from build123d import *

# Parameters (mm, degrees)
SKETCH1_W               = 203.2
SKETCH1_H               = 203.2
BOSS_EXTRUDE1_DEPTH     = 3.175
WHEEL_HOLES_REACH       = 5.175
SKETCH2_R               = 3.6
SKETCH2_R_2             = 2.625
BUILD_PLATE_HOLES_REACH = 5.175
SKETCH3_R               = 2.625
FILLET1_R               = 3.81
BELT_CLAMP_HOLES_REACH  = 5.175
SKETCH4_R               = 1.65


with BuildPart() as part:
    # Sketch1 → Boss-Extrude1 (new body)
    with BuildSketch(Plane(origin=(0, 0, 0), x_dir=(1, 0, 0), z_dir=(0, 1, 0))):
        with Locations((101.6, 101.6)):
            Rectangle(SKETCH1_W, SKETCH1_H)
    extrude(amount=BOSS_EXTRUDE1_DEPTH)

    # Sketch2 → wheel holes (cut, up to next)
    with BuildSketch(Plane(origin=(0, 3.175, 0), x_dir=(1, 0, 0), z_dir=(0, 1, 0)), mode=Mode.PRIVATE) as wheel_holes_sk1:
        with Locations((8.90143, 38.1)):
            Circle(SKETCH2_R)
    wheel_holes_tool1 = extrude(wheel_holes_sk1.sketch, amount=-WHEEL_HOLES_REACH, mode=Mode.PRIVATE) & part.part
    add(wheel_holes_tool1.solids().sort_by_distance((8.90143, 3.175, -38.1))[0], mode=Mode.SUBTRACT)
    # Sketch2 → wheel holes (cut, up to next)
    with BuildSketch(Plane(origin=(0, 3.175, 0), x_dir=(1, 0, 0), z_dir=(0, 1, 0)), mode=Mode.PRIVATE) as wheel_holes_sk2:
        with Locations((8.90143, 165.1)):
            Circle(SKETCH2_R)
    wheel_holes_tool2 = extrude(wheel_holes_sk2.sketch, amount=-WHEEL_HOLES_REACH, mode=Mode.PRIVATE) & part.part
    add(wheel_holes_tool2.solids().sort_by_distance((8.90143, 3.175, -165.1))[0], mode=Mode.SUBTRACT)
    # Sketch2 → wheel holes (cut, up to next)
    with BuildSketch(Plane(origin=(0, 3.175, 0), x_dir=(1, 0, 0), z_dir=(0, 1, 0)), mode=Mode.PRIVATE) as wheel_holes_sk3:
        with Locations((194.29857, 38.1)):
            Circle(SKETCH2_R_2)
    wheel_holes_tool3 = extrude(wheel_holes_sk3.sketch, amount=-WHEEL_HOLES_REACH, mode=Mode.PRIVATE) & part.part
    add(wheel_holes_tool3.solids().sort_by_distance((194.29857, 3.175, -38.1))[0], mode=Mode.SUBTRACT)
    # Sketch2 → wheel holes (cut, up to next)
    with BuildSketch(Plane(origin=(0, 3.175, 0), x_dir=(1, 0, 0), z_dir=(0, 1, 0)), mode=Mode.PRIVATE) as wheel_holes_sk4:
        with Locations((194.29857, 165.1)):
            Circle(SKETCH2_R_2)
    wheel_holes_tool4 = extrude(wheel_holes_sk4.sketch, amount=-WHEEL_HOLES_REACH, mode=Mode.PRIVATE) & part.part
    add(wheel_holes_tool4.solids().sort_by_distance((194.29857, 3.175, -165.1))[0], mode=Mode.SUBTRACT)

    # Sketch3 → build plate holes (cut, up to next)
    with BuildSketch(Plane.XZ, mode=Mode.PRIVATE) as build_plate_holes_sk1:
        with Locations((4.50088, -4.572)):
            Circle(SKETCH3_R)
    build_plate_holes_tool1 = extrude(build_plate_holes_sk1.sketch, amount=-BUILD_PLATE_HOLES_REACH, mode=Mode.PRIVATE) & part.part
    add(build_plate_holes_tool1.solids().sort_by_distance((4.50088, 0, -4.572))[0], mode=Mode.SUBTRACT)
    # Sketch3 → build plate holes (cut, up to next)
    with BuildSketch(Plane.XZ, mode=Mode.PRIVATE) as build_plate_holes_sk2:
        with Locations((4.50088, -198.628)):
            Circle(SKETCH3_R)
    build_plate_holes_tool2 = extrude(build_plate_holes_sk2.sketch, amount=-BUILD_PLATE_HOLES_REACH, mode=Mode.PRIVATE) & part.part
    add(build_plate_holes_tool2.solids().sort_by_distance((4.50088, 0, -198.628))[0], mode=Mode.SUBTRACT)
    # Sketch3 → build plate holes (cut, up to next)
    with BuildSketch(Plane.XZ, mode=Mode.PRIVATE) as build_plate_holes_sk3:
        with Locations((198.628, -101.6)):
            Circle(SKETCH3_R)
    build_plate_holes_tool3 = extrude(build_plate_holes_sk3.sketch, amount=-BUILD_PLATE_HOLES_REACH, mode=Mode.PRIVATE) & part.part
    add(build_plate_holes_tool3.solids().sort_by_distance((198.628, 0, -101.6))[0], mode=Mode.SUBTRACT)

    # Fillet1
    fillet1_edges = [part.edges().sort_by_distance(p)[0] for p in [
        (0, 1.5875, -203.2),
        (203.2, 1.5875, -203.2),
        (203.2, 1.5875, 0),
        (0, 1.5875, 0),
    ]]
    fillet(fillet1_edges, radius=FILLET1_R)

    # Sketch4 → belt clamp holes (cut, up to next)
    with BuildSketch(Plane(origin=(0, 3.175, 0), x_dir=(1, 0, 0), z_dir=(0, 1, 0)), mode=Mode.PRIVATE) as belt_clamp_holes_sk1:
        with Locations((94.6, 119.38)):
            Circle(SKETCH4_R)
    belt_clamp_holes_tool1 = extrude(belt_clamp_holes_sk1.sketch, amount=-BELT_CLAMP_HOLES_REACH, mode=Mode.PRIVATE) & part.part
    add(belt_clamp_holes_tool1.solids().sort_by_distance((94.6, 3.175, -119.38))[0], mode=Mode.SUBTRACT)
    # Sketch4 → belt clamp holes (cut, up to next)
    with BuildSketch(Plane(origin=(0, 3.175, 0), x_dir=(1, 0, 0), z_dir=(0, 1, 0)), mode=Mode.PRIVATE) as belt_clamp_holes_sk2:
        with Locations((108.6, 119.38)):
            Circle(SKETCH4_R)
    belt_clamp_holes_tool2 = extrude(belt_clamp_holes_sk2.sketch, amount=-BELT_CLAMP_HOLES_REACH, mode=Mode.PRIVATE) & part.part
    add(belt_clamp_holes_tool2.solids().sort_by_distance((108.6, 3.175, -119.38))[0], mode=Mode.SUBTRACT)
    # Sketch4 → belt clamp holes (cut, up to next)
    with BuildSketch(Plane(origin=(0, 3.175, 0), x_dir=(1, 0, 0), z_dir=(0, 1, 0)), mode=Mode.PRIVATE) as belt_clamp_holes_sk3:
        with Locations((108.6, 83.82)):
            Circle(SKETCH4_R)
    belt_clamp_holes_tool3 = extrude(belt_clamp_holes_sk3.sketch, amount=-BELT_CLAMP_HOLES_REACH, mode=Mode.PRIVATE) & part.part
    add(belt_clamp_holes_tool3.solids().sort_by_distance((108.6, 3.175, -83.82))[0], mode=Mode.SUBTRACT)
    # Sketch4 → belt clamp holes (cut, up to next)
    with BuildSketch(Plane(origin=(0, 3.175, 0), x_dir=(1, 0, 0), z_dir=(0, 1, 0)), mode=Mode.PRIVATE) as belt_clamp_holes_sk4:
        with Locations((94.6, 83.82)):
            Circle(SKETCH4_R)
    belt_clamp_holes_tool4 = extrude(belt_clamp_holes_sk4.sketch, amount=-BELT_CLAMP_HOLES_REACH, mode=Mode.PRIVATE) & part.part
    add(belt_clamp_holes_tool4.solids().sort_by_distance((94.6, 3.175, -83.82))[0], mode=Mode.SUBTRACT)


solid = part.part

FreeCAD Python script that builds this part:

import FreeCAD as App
import Part
import Sketcher

V = App.Vector
Q = App.Units.Quantity


def edges_at(feature, points):
    """Names of the edges that pass closest to the given points."""
    edges = feature.Shape.Edges
    near = lambda p: min(range(len(edges)), key=lambda i: edges[i].distToShape(Part.Vertex(*p))[0])
    return sorted({f"Edge{near(p) + 1}" for p in points})

doc = App.newDocument("Part")
params = doc.addObject("Spreadsheet::Sheet", "Params")
for row, (alias, value) in enumerate([
    ("sketch1_width", "8 in"),
    ("pad1_length", "0.125 in"),
    ("fillet_radius", "0.15 in"),
], start=1):
    params.set(f"A{row}", alias)
    params.set(f"B{row}", "=" + value)
    params.setAlias(f"B{row}", alias)

body = doc.addObject("PartDesign::Body", "Body")

# Sketch on XZ plane
sketch1 = body.newObject("Sketcher::SketchObject", "Sketch")
sketch1.AttachmentSupport = (doc.getObject("XZ_Plane"), [""])
sketch1.MapMode = "FlatFace"
sketch1.addGeometry([
    Part.LineSegment(V(0, -203, 0), V(0, 0, 0)),
    Part.LineSegment(V(0, 0, 0), V(203, 0, 0)),
    Part.LineSegment(V(203, 0, 0), V(203, -203, 0)),
    Part.LineSegment(V(203, -203, 0), V(0, -203, 0)),
], False)
sketch1.addConstraint([
    Sketcher.Constraint("Coincident", 0, 2, 1, 1),
    Sketcher.Constraint("Coincident", 1, 2, 2, 1),
    Sketcher.Constraint("Coincident", 2, 2, 3, 1),
    Sketcher.Constraint("Coincident", 3, 2, 0, 1),
    Sketcher.Constraint("Vertical", 0),
    Sketcher.Constraint("Horizontal", 1),
    Sketcher.Constraint("Vertical", 2),
    Sketcher.Constraint("Horizontal", 3),
    Sketcher.Constraint("Coincident", 0, 2, -1, 1),
    Sketcher.Constraint("Equal", 3, 0),
    Sketcher.Constraint("DistanceX", 1, 1, 1, 2, Q("8 in")),
])
sketch1.setExpression("Constraints[10]", "Params.sketch1_width")
pad1 = body.newObject("PartDesign::Pad", "Pad")
pad1.Profile = sketch1
pad1.setExpression("Length", "Params.pad1_length")
pad1.Reversed = True

# Sketch on XZ plane
sketch2 = body.newObject("Sketcher::SketchObject", "Sketch001")
sketch2.AttachmentSupport = (doc.getObject("XZ_Plane"), [""])
sketch2.MapMode = "FlatFace"
sketch2.AttachmentOffset = App.Placement(V(0, 0, -0.125 * 25.4), App.Rotation())
sketch2.addGeometry(Part.Circle(V(8.9, -38.1, 0), V(0, 0, 1), 3.6), False)
sketch2.addConstraint([
    Sketcher.Constraint("DistanceY", 0, 3, -1, 1, Q("1.5 in")),
    Sketcher.Constraint("Diameter", 0, Q("7.2 mm")),
    Sketcher.Constraint("DistanceX", -1, 1, 0, 3, Q("8.90143 mm")),
])
pocket1 = body.newObject("PartDesign::Pocket", "Pocket")
pocket1.Profile = sketch2
pocket1.Type = "UpToFirst"
pocket1.Reversed = True

# Sketch on XZ plane
sketch3 = body.newObject("Sketcher::SketchObject", "Sketch002")
sketch3.AttachmentSupport = (doc.getObject("XZ_Plane"), [""])
sketch3.MapMode = "FlatFace"
sketch3.AttachmentOffset = App.Placement(V(0, 0, -0.125 * 25.4), App.Rotation())
sketch3.addGeometry(Part.Circle(V(8.9, -165.1, 0), V(0, 0, 1), 3.6), False)
sketch3.addConstraint([
    Sketcher.Constraint("DistanceY", 0, 3, -1, 1, Q("6.5 in")),
    Sketcher.Constraint("Diameter", 0, Q("7.2 mm")),
    Sketcher.Constraint("DistanceX", -1, 1, 0, 3, Q("8.90143 mm")),
])
pocket2 = body.newObject("PartDesign::Pocket", "Pocket001")
pocket2.Profile = sketch3
pocket2.Type = "UpToFirst"
pocket2.Reversed = True

# Sketch on XZ plane
sketch4 = body.newObject("Sketcher::SketchObject", "Sketch003")
sketch4.AttachmentSupport = (doc.getObject("XZ_Plane"), [""])
sketch4.MapMode = "FlatFace"
sketch4.AttachmentOffset = App.Placement(V(0, 0, -0.125 * 25.4), App.Rotation())
sketch4.addGeometry(Part.Circle(V(194.3, -38.1, 0), V(0, 0, 1), 2.6), False)
sketch4.addConstraint([
    Sketcher.Constraint("DistanceY", 0, 3, -1, 1, Q("1.5 in")),
    Sketcher.Constraint("Diameter", 0, Q("5.25 mm")),
    Sketcher.Constraint("DistanceX", -1, 1, 0, 3, Q("194.29857 mm")),
])
pocket3 = body.newObject("PartDesign::Pocket", "Pocket002")
pocket3.Profile = sketch4
pocket3.Type = "UpToFirst"
pocket3.Reversed = True

# Sketch on XZ plane
sketch5 = body.newObject("Sketcher::SketchObject", "Sketch004")
sketch5.AttachmentSupport = (doc.getObject("XZ_Plane"), [""])
sketch5.MapMode = "FlatFace"
sketch5.AttachmentOffset = App.Placement(V(0, 0, -0.125 * 25.4), App.Rotation())
sketch5.addGeometry(Part.Circle(V(194.3, -165.1, 0), V(0, 0, 1), 2.6), False)
sketch5.addConstraint([
    Sketcher.Constraint("DistanceY", 0, 3, -1, 1, Q("6.5 in")),
    Sketcher.Constraint("Diameter", 0, Q("5.25 mm")),
    Sketcher.Constraint("DistanceX", -1, 1, 0, 3, Q("194.29857 mm")),
])
pocket4 = body.newObject("PartDesign::Pocket", "Pocket003")
pocket4.Profile = sketch5
pocket4.Type = "UpToFirst"
pocket4.Reversed = True

# Sketch on XZ plane
sketch6 = body.newObject("Sketcher::SketchObject", "Sketch005")
sketch6.AttachmentSupport = (doc.getObject("XZ_Plane"), [""])
sketch6.MapMode = "FlatFace"
sketch6.addGeometry(Part.Circle(V(4.5, -4.6, 0), V(0, 0, 1), 2.6), False)
sketch6.addConstraint([
    Sketcher.Constraint("Diameter", 0, Q("5.25 mm")),
    Sketcher.Constraint("DistanceY", 0, 3, -1, 1, Q("0.18 in")),
    Sketcher.Constraint("DistanceX", -1, 1, 0, 3, Q("0.1772 in")),
])
pocket5 = body.newObject("PartDesign::Pocket", "Pocket004")
pocket5.Profile = sketch6
pocket5.Type = "UpToFirst"

# Sketch on XZ plane
sketch7 = body.newObject("Sketcher::SketchObject", "Sketch006")
sketch7.AttachmentSupport = (doc.getObject("XZ_Plane"), [""])
sketch7.MapMode = "FlatFace"
sketch7.addGeometry(Part.Circle(V(4.5, -198.6, 0), V(0, 0, 1), 2.6), False)
sketch7.addConstraint([
    Sketcher.Constraint("Diameter", 0, Q("5.25 mm")),
    Sketcher.Constraint("DistanceY", 0, 3, -1, 1, Q("7.82 in")),
    Sketcher.Constraint("DistanceX", -1, 1, 0, 3, Q("0.1772 in")),
])
pocket6 = body.newObject("PartDesign::Pocket", "Pocket005")
pocket6.Profile = sketch7
pocket6.Type = "UpToFirst"

# Sketch on XZ plane
sketch8 = body.newObject("Sketcher::SketchObject", "Sketch007")
sketch8.AttachmentSupport = (doc.getObject("XZ_Plane"), [""])
sketch8.MapMode = "FlatFace"
sketch8.addGeometry(Part.Circle(V(198.6, -101.6, 0), V(0, 0, 1), 2.6), False)
sketch8.addConstraint([
    Sketcher.Constraint("DistanceY", 0, 3, -1, 1, Q("4 in")),
    Sketcher.Constraint("Diameter", 0, Q("5.25 mm")),
    Sketcher.Constraint("DistanceX", -1, 1, 0, 3, Q("7.82 in")),
])
pocket7 = body.newObject("PartDesign::Pocket", "Pocket006")
pocket7.Profile = sketch8
pocket7.Type = "UpToFirst"
doc.recompute()

fillet = body.newObject("PartDesign::Fillet", "Fillet")
fillet.Base = (pocket7, edges_at(pocket7, [
    (0, 1.587, -203.2),
    (203.2, 1.587, -203.2),
    (203.2, 1.587, 0),
    (0, 1.587, 0),
]))
fillet.setExpression("Radius", "Params.fillet_radius")

# Sketch on XZ plane
sketch9 = body.newObject("Sketcher::SketchObject", "Sketch008")
sketch9.AttachmentSupport = (doc.getObject("XZ_Plane"), [""])
sketch9.MapMode = "FlatFace"
sketch9.AttachmentOffset = App.Placement(V(0, 0, -0.125 * 25.4), App.Rotation())
sketch9.addGeometry(Part.Circle(V(94.6, -119.4, 0), V(0, 0, 1), 1.6), False)
sketch9.addConstraint([
    Sketcher.Constraint("DistanceY", 0, 3, -1, 1, Q("4.7 in")),
    Sketcher.Constraint("Diameter", 0, Q("3.3 mm")),
    Sketcher.Constraint("DistanceX", -1, 1, 0, 3, Q("94.6 mm")),
])
pocket8 = body.newObject("PartDesign::Pocket", "Pocket007")
pocket8.Profile = sketch9
pocket8.Type = "UpToFirst"
pocket8.Reversed = True

# Sketch on XZ plane
sketch10 = body.newObject("Sketcher::SketchObject", "Sketch009")
sketch10.AttachmentSupport = (doc.getObject("XZ_Plane"), [""])
sketch10.MapMode = "FlatFace"
sketch10.AttachmentOffset = App.Placement(V(0, 0, -0.125 * 25.4), App.Rotation())
sketch10.addGeometry(Part.Circle(V(108.6, -119.4, 0), V(0, 0, 1), 1.6), False)
sketch10.addConstraint([
    Sketcher.Constraint("DistanceY", 0, 3, -1, 1, Q("4.7 in")),
    Sketcher.Constraint("Diameter", 0, Q("3.3 mm")),
    Sketcher.Constraint("DistanceX", -1, 1, 0, 3, Q("108.6 mm")),
])
pocket9 = body.newObject("PartDesign::Pocket", "Pocket008")
pocket9.Profile = sketch10
pocket9.Type = "UpToFirst"
pocket9.Reversed = True

# Sketch on XZ plane
sketch11 = body.newObject("Sketcher::SketchObject", "Sketch010")
sketch11.AttachmentSupport = (doc.getObject("XZ_Plane"), [""])
sketch11.MapMode = "FlatFace"
sketch11.AttachmentOffset = App.Placement(V(0, 0, -0.125 * 25.4), App.Rotation())
sketch11.addGeometry(Part.Circle(V(108.6, -83.8, 0), V(0, 0, 1), 1.6), False)
sketch11.addConstraint([
    Sketcher.Constraint("DistanceY", 0, 3, -1, 1, Q("3.3 in")),
    Sketcher.Constraint("Diameter", 0, Q("3.3 mm")),
    Sketcher.Constraint("DistanceX", -1, 1, 0, 3, Q("108.6 mm")),
])
pocket10 = body.newObject("PartDesign::Pocket", "Pocket009")
pocket10.Profile = sketch11
pocket10.Type = "UpToFirst"
pocket10.Reversed = True

# Sketch on XZ plane
sketch12 = body.newObject("Sketcher::SketchObject", "Sketch011")
sketch12.AttachmentSupport = (doc.getObject("XZ_Plane"), [""])
sketch12.MapMode = "FlatFace"
sketch12.AttachmentOffset = App.Placement(V(0, 0, -0.125 * 25.4), App.Rotation())
sketch12.addGeometry(Part.Circle(V(94.6, -83.8, 0), V(0, 0, 1), 1.6), False)
sketch12.addConstraint([
    Sketcher.Constraint("DistanceY", 0, 3, -1, 1, Q("3.3 in")),
    Sketcher.Constraint("Diameter", 0, Q("3.3 mm")),
    Sketcher.Constraint("DistanceX", -1, 1, 0, 3, Q("94.6 mm")),
])
pocket11 = body.newObject("PartDesign::Pocket", "Pocket010")
pocket11.Profile = sketch12
pocket11.Type = "UpToFirst"
pocket11.Reversed = True

doc.recompute()
